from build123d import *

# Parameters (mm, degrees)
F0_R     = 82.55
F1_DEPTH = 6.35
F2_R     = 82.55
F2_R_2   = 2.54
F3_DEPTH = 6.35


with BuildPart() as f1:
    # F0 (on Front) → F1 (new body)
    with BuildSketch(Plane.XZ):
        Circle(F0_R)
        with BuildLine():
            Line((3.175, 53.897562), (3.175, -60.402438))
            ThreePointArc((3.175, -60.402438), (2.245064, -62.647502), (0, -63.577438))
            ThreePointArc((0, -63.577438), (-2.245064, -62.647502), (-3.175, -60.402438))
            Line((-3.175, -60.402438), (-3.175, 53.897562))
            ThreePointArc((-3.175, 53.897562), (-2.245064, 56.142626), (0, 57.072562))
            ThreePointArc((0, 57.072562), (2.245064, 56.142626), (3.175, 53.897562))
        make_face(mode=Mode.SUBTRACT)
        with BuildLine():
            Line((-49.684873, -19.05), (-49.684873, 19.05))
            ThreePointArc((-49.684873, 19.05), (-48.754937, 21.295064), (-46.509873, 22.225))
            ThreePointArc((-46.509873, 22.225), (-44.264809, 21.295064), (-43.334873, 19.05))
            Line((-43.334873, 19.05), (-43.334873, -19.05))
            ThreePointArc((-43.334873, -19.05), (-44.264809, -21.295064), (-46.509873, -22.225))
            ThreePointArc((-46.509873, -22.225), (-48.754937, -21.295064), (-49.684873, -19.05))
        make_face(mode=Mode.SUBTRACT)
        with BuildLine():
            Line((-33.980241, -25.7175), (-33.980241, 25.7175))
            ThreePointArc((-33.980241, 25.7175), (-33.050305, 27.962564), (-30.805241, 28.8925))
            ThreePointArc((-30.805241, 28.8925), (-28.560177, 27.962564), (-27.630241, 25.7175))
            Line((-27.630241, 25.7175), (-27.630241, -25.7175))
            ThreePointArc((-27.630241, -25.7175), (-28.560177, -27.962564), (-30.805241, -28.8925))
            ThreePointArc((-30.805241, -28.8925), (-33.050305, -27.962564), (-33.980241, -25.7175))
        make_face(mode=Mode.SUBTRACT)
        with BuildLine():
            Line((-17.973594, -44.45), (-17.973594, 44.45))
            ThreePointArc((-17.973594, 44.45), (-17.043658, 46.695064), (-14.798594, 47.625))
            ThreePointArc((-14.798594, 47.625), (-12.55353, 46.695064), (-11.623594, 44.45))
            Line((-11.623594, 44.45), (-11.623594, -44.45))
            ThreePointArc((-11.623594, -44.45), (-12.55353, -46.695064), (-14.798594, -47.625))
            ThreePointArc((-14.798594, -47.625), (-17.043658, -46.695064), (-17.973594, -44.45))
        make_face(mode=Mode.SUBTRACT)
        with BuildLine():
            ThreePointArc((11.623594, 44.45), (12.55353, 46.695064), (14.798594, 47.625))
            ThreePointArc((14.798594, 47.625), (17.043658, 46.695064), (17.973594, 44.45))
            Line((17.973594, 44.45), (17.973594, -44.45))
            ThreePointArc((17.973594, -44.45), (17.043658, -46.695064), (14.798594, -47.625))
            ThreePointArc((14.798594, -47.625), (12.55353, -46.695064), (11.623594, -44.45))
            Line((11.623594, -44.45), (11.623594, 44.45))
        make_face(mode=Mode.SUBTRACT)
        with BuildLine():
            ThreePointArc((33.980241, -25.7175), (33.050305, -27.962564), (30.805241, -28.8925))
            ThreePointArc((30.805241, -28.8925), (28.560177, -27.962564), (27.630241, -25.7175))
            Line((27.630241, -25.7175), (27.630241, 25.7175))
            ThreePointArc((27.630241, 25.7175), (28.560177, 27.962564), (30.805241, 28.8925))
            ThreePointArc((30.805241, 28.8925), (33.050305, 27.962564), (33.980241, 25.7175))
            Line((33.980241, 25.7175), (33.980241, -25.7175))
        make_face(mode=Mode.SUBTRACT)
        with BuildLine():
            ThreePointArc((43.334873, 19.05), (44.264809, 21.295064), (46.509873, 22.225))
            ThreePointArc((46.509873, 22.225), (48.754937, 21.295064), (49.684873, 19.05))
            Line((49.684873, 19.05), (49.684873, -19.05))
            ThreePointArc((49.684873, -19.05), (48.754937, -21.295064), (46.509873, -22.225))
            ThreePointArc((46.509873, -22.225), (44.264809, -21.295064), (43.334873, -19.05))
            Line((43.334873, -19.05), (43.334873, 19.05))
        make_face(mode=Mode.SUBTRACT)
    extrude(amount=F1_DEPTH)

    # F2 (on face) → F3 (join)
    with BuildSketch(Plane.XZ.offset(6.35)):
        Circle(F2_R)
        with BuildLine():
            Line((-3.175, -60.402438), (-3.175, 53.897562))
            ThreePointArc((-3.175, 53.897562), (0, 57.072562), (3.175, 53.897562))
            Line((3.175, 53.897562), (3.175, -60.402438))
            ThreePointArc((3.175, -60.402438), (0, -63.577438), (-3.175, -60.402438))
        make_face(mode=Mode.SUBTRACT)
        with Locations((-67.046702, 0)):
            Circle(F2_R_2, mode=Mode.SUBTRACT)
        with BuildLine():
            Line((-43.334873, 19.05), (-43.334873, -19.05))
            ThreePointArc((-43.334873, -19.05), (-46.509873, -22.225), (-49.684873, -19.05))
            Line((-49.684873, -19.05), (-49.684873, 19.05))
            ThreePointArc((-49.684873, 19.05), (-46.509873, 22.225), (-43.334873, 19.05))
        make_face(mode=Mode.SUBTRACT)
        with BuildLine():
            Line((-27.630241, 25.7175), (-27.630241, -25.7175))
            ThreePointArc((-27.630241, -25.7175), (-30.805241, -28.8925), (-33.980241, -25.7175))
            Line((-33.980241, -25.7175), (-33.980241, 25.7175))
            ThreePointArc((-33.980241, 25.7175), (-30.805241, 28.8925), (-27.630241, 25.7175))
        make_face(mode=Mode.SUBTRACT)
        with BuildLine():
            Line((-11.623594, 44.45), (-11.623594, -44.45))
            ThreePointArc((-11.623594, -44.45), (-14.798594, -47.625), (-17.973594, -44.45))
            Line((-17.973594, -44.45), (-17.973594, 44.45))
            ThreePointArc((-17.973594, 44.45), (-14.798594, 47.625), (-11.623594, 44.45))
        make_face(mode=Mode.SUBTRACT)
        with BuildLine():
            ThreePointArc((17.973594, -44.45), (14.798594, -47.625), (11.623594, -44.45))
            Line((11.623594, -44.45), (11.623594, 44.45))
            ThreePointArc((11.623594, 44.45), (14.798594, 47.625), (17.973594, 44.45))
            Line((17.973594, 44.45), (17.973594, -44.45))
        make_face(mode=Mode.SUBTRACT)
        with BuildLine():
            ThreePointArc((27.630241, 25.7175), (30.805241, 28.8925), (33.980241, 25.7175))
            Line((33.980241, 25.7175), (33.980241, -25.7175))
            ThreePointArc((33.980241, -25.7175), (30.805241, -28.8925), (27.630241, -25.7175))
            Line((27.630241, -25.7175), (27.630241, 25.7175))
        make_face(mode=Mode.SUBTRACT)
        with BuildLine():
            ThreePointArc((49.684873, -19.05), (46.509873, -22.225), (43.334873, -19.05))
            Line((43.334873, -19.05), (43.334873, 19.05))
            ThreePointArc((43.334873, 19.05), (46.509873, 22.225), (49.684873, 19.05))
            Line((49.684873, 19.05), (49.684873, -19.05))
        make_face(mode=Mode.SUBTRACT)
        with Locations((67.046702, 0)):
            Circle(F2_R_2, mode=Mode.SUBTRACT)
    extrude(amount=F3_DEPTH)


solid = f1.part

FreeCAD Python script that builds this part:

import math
import FreeCAD as App
import Part
import Sketcher
Q = App.Units.Quantity

doc = App.newDocument("Part")
body = doc.addObject("PartDesign::Body", "Body")

# Sketch on XZ plane
sketch1 = body.newObject("Sketcher::SketchObject", "Sketch")
sketch1.AttachmentSupport = (doc.getObject("XZ_Plane"), [""])
sketch1.MapMode = "FlatFace"
sketch1.addGeometry([
    Part.Circle(App.Vector(0, 0, 0), App.Vector(0, 0, 1), 82.5),  # 0
    Part.ArcOfCircle(Part.Circle(App.Vector(-46.5, -19, 0), App.Vector(0, 0, 1), 3.2), math.radians(-180), math.radians(-90)),  # 1
    Part.LineSegment(App.Vector(-49.7, -19.1, 0), App.Vector(-49.7, 19.1, 0)),  # 2
    Part.ArcOfCircle(Part.Circle(App.Vector(-46.5, 19, 0), App.Vector(0, 0, 1), 3.2), math.radians(90), math.radians(180)),  # 3
    Part.ArcOfCircle(Part.Circle(App.Vector(-46.5, 19, 0), App.Vector(0, 0, 1), 3.2), math.radians(0), math.radians(90)),  # 4
    Part.LineSegment(App.Vector(-43.3, 19.1, 0), App.Vector(-43.3, -19.1, 0)),  # 5
    Part.ArcOfCircle(Part.Circle(App.Vector(-46.5, -19, 0), App.Vector(0, 0, 1), 3.2), math.radians(-90), math.radians(0)),  # 6
    Part.ArcOfCircle(Part.Circle(App.Vector(-30.8, -25.7, 0), App.Vector(0, 0, 1), 3.2), math.radians(-180), math.radians(-90)),  # 7
    Part.LineSegment(App.Vector(-34, -25.7, 0), App.Vector(-34, 25.7, 0)),  # 8
    Part.ArcOfCircle(Part.Circle(App.Vector(-30.8, 25.7, 0), App.Vector(0, 0, 1), 3.2), math.radians(90), math.radians(180)),  # 9
    Part.ArcOfCircle(Part.Circle(App.Vector(-30.8, 25.7, 0), App.Vector(0, 0, 1), 3.2), math.radians(0), math.radians(90)),  # 10
    Part.LineSegment(App.Vector(-27.6, 25.7, 0), App.Vector(-27.6, -25.7, 0)),  # 11
    Part.ArcOfCircle(Part.Circle(App.Vector(-30.8, -25.7, 0), App.Vector(0, 0, 1), 3.2), math.radians(-90), math.radians(0)),  # 12
    Part.ArcOfCircle(Part.Circle(App.Vector(-14.8, -44.4, 0), App.Vector(0, 0, 1), 3.2), math.radians(-180), math.radians(-90)),  # 13
    Part.LineSegment(App.Vector(-18, -44.5, 0), App.Vector(-18, 44.5, 0)),  # 14
    Part.ArcOfCircle(Part.Circle(App.Vector(-14.8, 44.4, 0), App.Vector(0, 0, 1), 3.2), math.radians(90), math.radians(180)),  # 15
    Part.ArcOfCircle(Part.Circle(App.Vector(-14.8, 44.4, 0), App.Vector(0, 0, 1), 3.2), math.radians(0), math.radians(90)),  # 16
    Part.LineSegment(App.Vector(-11.6, 44.5, 0), App.Vector(-11.6, -44.5, 0)),  # 17
    Part.ArcOfCircle(Part.Circle(App.Vector(-14.8, -44.4, 0), App.Vector(0, 0, 1), 3.2), math.radians(-90), math.radians(0)),  # 18
    Part.ArcOfCircle(Part.Circle(App.Vector(0, 53.9, 0), App.Vector(0, 0, 1), 3.2), math.radians(0), math.radians(90)),  # 19
    Part.LineSegment(App.Vector(3.2, 53.9, 0), App.Vector(3.2, -60.4, 0)),  # 20
    Part.ArcOfCircle(Part.Circle(App.Vector(0, -60.4, 0), App.Vector(0, 0, 1), 3.2), math.radians(-90), math.radians(0)),  # 21
    Part.ArcOfCircle(Part.Circle(App.Vector(0, -60.4, 0), App.Vector(0, 0, 1), 3.2), math.radians(-180), math.radians(-90)),  # 22
    Part.LineSegment(App.Vector(-3.2, -60.4, 0), App.Vector(-3.2, 53.9, 0)),  # 23
    Part.ArcOfCircle(Part.Circle(App.Vector(0, 53.9, 0), App.Vector(0, 0, 1), 3.2), math.radians(90), math.radians(180)),  # 24
    Part.LineSegment(App.Vector(11.6, -44.5, 0), App.Vector(11.6, 44.5, 0)),  # 25
    Part.ArcOfCircle(Part.Circle(App.Vector(14.8, 44.4, 0), App.Vector(0, 0, 1), 3.2), math.radians(90), math.radians(180)),  # 26
    Part.ArcOfCircle(Part.Circle(App.Vector(14.8, 44.4, 0), App.Vector(0, 0, 1), 3.2), math.radians(0), math.radians(90)),  # 27
    Part.LineSegment(App.Vector(18, 44.5, 0), App.Vector(18, -44.5, 0)),  # 28
    Part.ArcOfCircle(Part.Circle(App.Vector(14.8, -44.4, 0), App.Vector(0, 0, 1), 3.2), math.radians(-90), math.radians(0)),  # 29
    Part.ArcOfCircle(Part.Circle(App.Vector(14.8, -44.4, 0), App.Vector(0, 0, 1), 3.2), math.radians(-180), math.radians(-90)),  # 30
    Part.LineSegment(App.Vector(34, 25.7, 0), App.Vector(34, -25.7, 0)),  # 31
    Part.ArcOfCircle(Part.Circle(App.Vector(30.8, -25.7, 0), App.Vector(0, 0, 1), 3.2), math.radians(-90), math.radians(0)),  # 32
    Part.ArcOfCircle(Part.Circle(App.Vector(30.8, -25.7, 0), App.Vector(0, 0, 1), 3.2), math.radians(-180), math.radians(-90)),  # 33
    Part.LineSegment(App.Vector(27.6, -25.7, 0), App.Vector(27.6, 25.7, 0)),  # 34
    Part.ArcOfCircle(Part.Circle(App.Vector(30.8, 25.7, 0), App.Vector(0, 0, 1), 3.2), math.radians(90), math.radians(180)),  # 35
    Part.ArcOfCircle(Part.Circle(App.Vector(30.8, 25.7, 0), App.Vector(0, 0, 1), 3.2), math.radians(0), math.radians(90)),  # 36
    Part.LineSegment(App.Vector(43.3, -19.1, 0), App.Vector(43.3, 19.1, 0)),  # 37
    Part.ArcOfCircle(Part.Circle(App.Vector(46.5, 19, 0), App.Vector(0, 0, 1), 3.2), math.radians(90), math.radians(180)),  # 38
    Part.ArcOfCircle(Part.Circle(App.Vector(46.5, 19, 0), App.Vector(0, 0, 1), 3.2), math.radians(0), math.radians(90)),  # 39
    Part.LineSegment(App.Vector(49.7, 19.1, 0), App.Vector(49.7, -19.1, 0)),  # 40
    Part.ArcOfCircle(Part.Circle(App.Vector(46.5, -19, 0), App.Vector(0, 0, 1), 3.2), math.radians(-90), math.radians(0)),  # 41
    Part.ArcOfCircle(Part.Circle(App.Vector(46.5, -19, 0), App.Vector(0, 0, 1), 3.2), math.radians(-180), math.radians(-90)),  # 42
], False)
sketch1.addConstraint([
    Sketcher.Constraint("Tangent", 1, 1, 2, 1),
    Sketcher.Constraint("Tangent", 2, 2, 3, 2),
    Sketcher.Constraint("Tangent", 3, 1, 4, 2),
    Sketcher.Constraint("Tangent", 4, 1, 5, 1),
    Sketcher.Constraint("Tangent", 5, 2, 6, 2),
    Sketcher.Constraint("Tangent", 6, 1, 1, 2),
    Sketcher.Constraint("Tangent", 7, 1, 8, 1),
    Sketcher.Constraint("Tangent", 8, 2, 9, 2),
    Sketcher.Constraint("Tangent", 9, 1, 10, 2),
    Sketcher.Constraint("Tangent", 10, 1, 11, 1),
    Sketcher.Constraint("Tangent", 11, 2, 12, 2),
    Sketcher.Constraint("Tangent", 12, 1, 7, 2),
    Sketcher.Constraint("Tangent", 13, 1, 14, 1),
    Sketcher.Constraint("Tangent", 14, 2, 15, 2),
    Sketcher.Constraint("Tangent", 15, 1, 16, 2),
    Sketcher.Constraint("Tangent", 16, 1, 17, 1),
    Sketcher.Constraint("Tangent", 17, 2, 18, 2),
    Sketcher.Constraint("Tangent", 18, 1, 13, 2),
    Sketcher.Constraint("Tangent", 19, 1, 20, 1),
    Sketcher.Constraint("Tangent", 20, 2, 21, 2),
    Sketcher.Constraint("Tangent", 21, 1, 22, 2),
    Sketcher.Constraint("Tangent", 22, 1, 23, 1),
    Sketcher.Constraint("Tangent", 23, 2, 24, 2),
    Sketcher.Constraint("Tangent", 24, 1, 19, 2),
    Sketcher.Constraint("Tangent", 25, 2, 26, 2),
    Sketcher.Constraint("Tangent", 26, 1, 27, 2),
    Sketcher.Constraint("Tangent", 27, 1, 28, 1),
    Sketcher.Constraint("Tangent", 28, 2, 29, 2),
    Sketcher.Constraint("Tangent", 29, 1, 30, 2),
    Sketcher.Constraint("Tangent", 30, 1, 25, 1),
    Sketcher.Constraint("Tangent", 31, 2, 32, 2),
    Sketcher.Constraint("Tangent", 32, 1, 33, 2),
    Sketcher.Constraint("Tangent", 33, 1, 34, 1),
    Sketcher.Constraint("Tangent", 34, 2, 35, 2),
    Sketcher.Constraint("Tangent", 35, 1, 36, 2),
    Sketcher.Constraint("Tangent", 36, 1, 31, 1),
    Sketcher.Constraint("Tangent", 37, 2, 38, 2),
    Sketcher.Constraint("Tangent", 38, 1, 39, 2),
    Sketcher.Constraint("Tangent", 39, 1, 40, 1),
    Sketcher.Constraint("Tangent", 40, 2, 41, 2),
    Sketcher.Constraint("Tangent", 41, 1, 42, 2),
    Sketcher.Constraint("Tangent", 42, 1, 37, 1),
    Sketcher.Constraint("Vertical", 2),
    Sketcher.Constraint("Vertical", 5),
    Sketcher.Constraint("Vertical", 8),
    Sketcher.Constraint("Vertical", 11),
    Sketcher.Constraint("Vertical", 14),
    Sketcher.Constraint("Vertical", 17),
    Sketcher.Constraint("Vertical", 20),
    Sketcher.Constraint("Vertical", 23),
    Sketcher.Constraint("Vertical", 25),
    Sketcher.Constraint("Vertical", 28),
    Sketcher.Constraint("Vertical", 31),
    Sketcher.Constraint("Vertical", 34),
    Sketcher.Constraint("Vertical", 37),
    Sketcher.Constraint("Vertical", 40),
    Sketcher.Constraint("Coincident", 0, 3, -1, 1),
    Sketcher.Constraint("Equal", 1, 3),
    Sketcher.Constraint("Equal", 3, 4),
    Sketcher.Constraint("Equal", 6, 7),
    Sketcher.Constraint("Equal", 7, 9),
    Sketcher.Constraint("Equal", 9, 10),
    Sketcher.Constraint("Equal", 12, 13),
    Sketcher.Constraint("Equal", 13, 15),
    Sketcher.Constraint("Equal", 15, 16),
    Sketcher.Constraint("Equal", 18, 19),
    Sketcher.Constraint("Equal", 19, 21),
    Sketcher.Constraint("Equal", 21, 22),
    Sketcher.Constraint("Equal", 24, 26),
    Sketcher.Constraint("Equal", 26, 27),
    Sketcher.Constraint("Equal", 27, 29),
    Sketcher.Constraint("Equal", 30, 32),
    Sketcher.Constraint("Equal", 32, 33),
    Sketcher.Constraint("Equal", 33, 35),
    Sketcher.Constraint("Equal", 36, 38),
    Sketcher.Constraint("Equal", 38, 39),
    Sketcher.Constraint("Equal", 39, 41),
    Sketcher.Constraint("Symmetric", 13, 3, 26, 3, -1, 1),
    Sketcher.Constraint("Symmetric", 9, 3, 32, 3, -1, 1),
    Sketcher.Constraint("Symmetric", 1, 3, 38, 3, -1, 1),
    Sketcher.Constraint("Symmetric", 15, 1, 29, 1, -1, 1),
    Sketcher.Constraint("Symmetric", 12, 1, 35, 1, -1, 1),
    Sketcher.Constraint("Symmetric", 3, 1, 41, 1, -1, 1),
    Sketcher.Constraint("Symmetric", 15, 1, 26, 1, -2),
    Sketcher.Constraint("Symmetric", 12, 1, 32, 1, -2),
    Sketcher.Constraint("Symmetric", 3, 1, 38, 1, -2),
    Sketcher.Constraint("PointOnObject", 19, 3, -2),
    Sketcher.Constraint("PointOnObject", 21, 1, -2),
    Sketcher.Constraint("PointOnObject", 24, 1, -2),
    Sketcher.Constraint("Vertical", 6, 3, 3, 1),
    Sketcher.Constraint("Vertical", 3, 1, 6, 1),
    Sketcher.Constraint("Vertical", 12, 3, 9, 1),
    Sketcher.Constraint("Vertical", 9, 1, 12, 1),
    Sketcher.Constraint("Vertical", 18, 3, 15, 1),
    Sketcher.Constraint("Vertical", 15, 1, 18, 1),
    Sketcher.Constraint("Diameter", 0, Q("6.5 in")),
    Sketcher.Constraint("DistanceY", 2, 1, 2, 2, Q("1.5 in")),
    Sketcher.Constraint("DistanceY", 14, 1, 14, 2, Q("3.5 in")),
    Sketcher.Constraint("DistanceY", 20, 2, 20, 1, Q("4.5 in")),
    Sketcher.Constraint("Radius", 1, Q("0.125 in")),
    Sketcher.Constraint("DistanceY", 8, 1, 8, 2, Q("2.025 in")),
    Sketcher.Constraint("DistanceX", 7, 3, -1, 1, Q("30.805241 mm")),
    Sketcher.Constraint("DistanceY", -1, 1, 19, 3, Q("53.897562 mm")),
    Sketcher.Constraint("DistanceX", 1, 3, -1, 1, Q("46.509873 mm")),
    Sketcher.Constraint("DistanceX", 13, 3, -1, 1, Q("14.798594 mm")),
])
pad1 = body.newObject("PartDesign::Pad", "Pad")
pad1.Profile = sketch1
pad1.Length = Q("0.25 in")

# Sketch on XZ plane
sketch2 = body.newObject("Sketcher::SketchObject", "Sketch001")
sketch2.AttachmentSupport = (doc.getObject("XZ_Plane"), [""])
sketch2.MapMode = "FlatFace"
sketch2.AttachmentOffset = App.Placement(App.Vector(0, 0, 0.25 * 25.4), App.Rotation())
sketch2.addGeometry([
    Part.Circle(App.Vector(0, 0, 0), App.Vector(0, 0, 1), 82.5),  # 0
    Part.Circle(App.Vector(-67, 0, 0), App.Vector(0, 0, 1), 2.5),  # 1
    Part.ArcOfCircle(Part.Circle(App.Vector(-46.5, 19.1, 0), App.Vector(0, 0, 1), 3.2), math.radians(0), math.radians(180)),  # 2
    Part.LineSegment(App.Vector(-43.3, 19.1, 0), App.Vector(-43.3, -19.1, 0)),  # 3
    Part.ArcOfCircle(Part.Circle(App.Vector(-46.5, -19.1, 0), App.Vector(0, 0, 1), 3.2), math.radians(180), math.radians(360)),  # 4
    Part.LineSegment(App.Vector(-49.7, -19.1, 0), App.Vector(-49.7, 19.1, 0)),  # 5
    Part.ArcOfCircle(Part.Circle(App.Vector(-30.8, 25.7, 0), App.Vector(0, 0, 1), 3.2), math.radians(0), math.radians(180)),  # 6
    Part.LineSegment(App.Vector(-27.6, 25.7, 0), App.Vector(-27.6, -25.7, 0)),  # 7
    Part.ArcOfCircle(Part.Circle(App.Vector(-30.8, -25.7, 0), App.Vector(0, 0, 1), 3.2), math.radians(180), math.radians(360)),  # 8
    Part.LineSegment(App.Vector(-34, -25.7, 0), App.Vector(-34, 25.7, 0)),  # 9
    Part.ArcOfCircle(Part.Circle(App.Vector(-14.8, 44.5, 0), App.Vector(0, 0, 1), 3.2), math.radians(0), math.radians(180)),  # 10
    Part.LineSegment(App.Vector(-11.6, 44.5, 0), App.Vector(-11.6, -44.5, 0)),  # 11
    Part.ArcOfCircle(Part.Circle(App.Vector(-14.8, -44.5, 0), App.Vector(0, 0, 1), 3.2), math.radians(180), math.radians(360)),  # 12
    Part.LineSegment(App.Vector(-18, -44.5, 0), App.Vector(-18, 44.5, 0)),  # 13
    Part.ArcOfCircle(Part.Circle(App.Vector(0, -60.4, 0), App.Vector(0, 0, 1), 3.2), math.radians(180), math.radians(360)),  # 14
    Part.LineSegment(App.Vector(-3.2, -60.4, 0), App.Vector(-3.2, 53.9, 0)),  # 15
    Part.ArcOfCircle(Part.Circle(App.Vector(0, 53.9, 0), App.Vector(0, 0, 1), 3.2), math.radians(0), math.radians(180)),  # 16
    Part.LineSegment(App.Vector(3.2, 53.9, 0), App.Vector(3.2, -60.4, 0)),  # 17
    Part.LineSegment(App.Vector(18, 44.5, 0), App.Vector(18, -44.5, 0)),  # 18
    Part.ArcOfCircle(Part.Circle(App.Vector(14.8, -44.5, 0), App.Vector(0, 0, 1), 3.2), math.radians(180), math.radians(360)),  # 19
    Part.LineSegment(App.Vector(11.6, -44.5, 0), App.Vector(11.6, 44.5, 0)),  # 20
    Part.ArcOfCircle(Part.Circle(App.Vector(14.8, 44.5, 0), App.Vector(0, 0, 1), 3.2), math.radians(0), math.radians(180)),  # 21
    Part.LineSegment(App.Vector(27.6, -25.7, 0), App.Vector(27.6, 25.7, 0)),  # 22
    Part.ArcOfCircle(Part.Circle(App.Vector(30.8, 25.7, 0), App.Vector(0, 0, 1), 3.2), math.radians(0), math.radians(180)),  # 23
    Part.LineSegment(App.Vector(34, 25.7, 0), App.Vector(34, -25.7, 0)),  # 24
    Part.ArcOfCircle(Part.Circle(App.Vector(30.8, -25.7, 0), App.Vector(0, 0, 1), 3.2), math.radians(180), math.radians(360)),  # 25
    Part.LineSegment(App.Vector(49.7, 19.1, 0), App.Vector(49.7, -19.1, 0)),  # 26
    Part.ArcOfCircle(Part.Circle(App.Vector(46.5, -19.1, 0), App.Vector(0, 0, 1), 3.2), math.radians(180), math.radians(360)),  # 27
    Part.LineSegment(App.Vector(43.3, -19.1, 0), App.Vector(43.3, 19.1, 0)),  # 28
    Part.ArcOfCircle(Part.Circle(App.Vector(46.5, 19.1, 0), App.Vector(0, 0, 1), 3.2), math.radians(0), math.radians(180)),  # 29
    Part.Circle(App.Vector(67, 0, 0), App.Vector(0, 0, 1), 2.5),  # 30
], False)
sketch2.addConstraint([
    Sketcher.Constraint("Tangent", 2, 1, 3, 1),
    Sketcher.Constraint("Tangent", 3, 2, 4, 2),
    Sketcher.Constraint("Tangent", 4, 1, 5, 1),
    Sketcher.Constraint("Tangent", 5, 2, 2, 2),
    Sketcher.Constraint("Tangent", 6, 1, 7, 1),
    Sketcher.Constraint("Tangent", 7, 2, 8, 2),
    Sketcher.Constraint("Tangent", 8, 1, 9, 1),
    Sketcher.Constraint("Tangent", 9, 2, 6, 2),
    Sketcher.Constraint("Tangent", 10, 1, 11, 1),
    Sketcher.Constraint("Tangent", 11, 2, 12, 2),
    Sketcher.Constraint("Tangent", 12, 1, 13, 1),
    Sketcher.Constraint("Tangent", 13, 2, 10, 2),
    Sketcher.Constraint("Tangent", 14, 1, 15, 1),
    Sketcher.Constraint("Tangent", 15, 2, 16, 2),
    Sketcher.Constraint("Tangent", 16, 1, 17, 1),
    Sketcher.Constraint("Tangent", 17, 2, 14, 2),
    Sketcher.Constraint("Tangent", 18, 2, 19, 2),
    Sketcher.Constraint("Tangent", 19, 1, 20, 1),
    Sketcher.Constraint("Tangent", 20, 2, 21, 2),
    Sketcher.Constraint("Tangent", 21, 1, 18, 1),
    Sketcher.Constraint("Tangent", 22, 2, 23, 2),
    Sketcher.Constraint("Tangent", 23, 1, 24, 1),
    Sketcher.Constraint("Tangent", 24, 2, 25, 2),
    Sketcher.Constraint("Tangent", 25, 1, 22, 1),
    Sketcher.Constraint("Tangent", 26, 2, 27, 2),
    Sketcher.Constraint("Tangent", 27, 1, 28, 1),
    Sketcher.Constraint("Tangent", 28, 2, 29, 2),
    Sketcher.Constraint("Tangent", 29, 1, 26, 1),
    Sketcher.Constraint("Vertical", 3),
    Sketcher.Constraint("Vertical", 5),
    Sketcher.Constraint("Vertical", 7),
    Sketcher.Constraint("Vertical", 9),
    Sketcher.Constraint("Vertical", 11),
    Sketcher.Constraint("Vertical", 13),
    Sketcher.Constraint("Vertical", 15),
    Sketcher.Constraint("Vertical", 17),
    Sketcher.Constraint("Vertical", 18),
    Sketcher.Constraint("Vertical", 20),
    Sketcher.Constraint("Vertical", 22),
    Sketcher.Constraint("Vertical", 24),
    Sketcher.Constraint("Vertical", 26),
    Sketcher.Constraint("Vertical", 28),
    Sketcher.Constraint("Coincident", 0, 3, -1, 1),
    Sketcher.Constraint("Equal", 4, 6),
    Sketcher.Constraint("Equal", 8, 10),
    Sketcher.Constraint("Equal", 12, 14),
    Sketcher.Constraint("Equal", 16, 19),
    Sketcher.Constraint("Equal", 21, 23),
    Sketcher.Constraint("Equal", 25, 27),
    Sketcher.Constraint("Equal", 1, 30),
    Sketcher.Constraint("Symmetric", 10, 3, 19, 3, -1, 1),
    Sketcher.Constraint("Symmetric", 8, 3, 23, 3, -1, 1),
    Sketcher.Constraint("Symmetric", 2, 3, 27, 3, -1, 1),
    Sketcher.Constraint("Symmetric", 1, 3, 30, 3, -1, 1),
    Sketcher.Constraint("PointOnObject", 1, 3, -1),
    Sketcher.Constraint("PointOnObject", 14, 3, -2),
    Sketcher.Constraint("Horizontal", 12, 3, 19, 3),
    Sketcher.Constraint("Horizontal", 10, 3, 21, 3),
    Sketcher.Constraint("Horizontal", 6, 3, 23, 3),
    Sketcher.Constraint("Horizontal", 8, 3, 25, 3),
    Sketcher.Constraint("Horizontal", 4, 3, 27, 3),
    Sketcher.Constraint("Horizontal", 2, 3, 29, 3),
    Sketcher.Constraint("Diameter", 0, Q("6.5 in")),
    Sketcher.Constraint("Diameter", 1, Q("0.2 in")),
    Sketcher.Constraint("DistanceY", 3, 2, 3, 1, Q("1.5 in")),
    Sketcher.Constraint("DistanceY", 11, 2, 11, 1, Q("3.5 in")),
    Sketcher.Constraint("DistanceY", 15, 1, 15, 2, Q("4.5 in")),
    Sketcher.Constraint("Radius", 2, Q("0.125 in")),
    Sketcher.Constraint("DistanceY", 7, 2, 7, 1, Q("2.025 in")),
    Sketcher.Constraint("DistanceX", 1, 3, -1, 1, Q("67.046702 mm")),
    Sketcher.Constraint("DistanceX", 6, 3, -1, 1, Q("30.805241 mm")),
    Sketcher.Constraint("DistanceX", 1, 3, 2, 3, Q("20.536829 mm")),
    Sketcher.Constraint("DistanceX", 2, 3, 10, 3, Q("31.711279 mm")),
    Sketcher.Constraint("DistanceY", 10, 3, 16, 3, Q("9.447562 mm")),
])
pad2 = body.newObject("PartDesign::Pad", "Pad001")
pad2.Profile = sketch2
pad2.Length = Q("0.25 in")

doc.recompute()
